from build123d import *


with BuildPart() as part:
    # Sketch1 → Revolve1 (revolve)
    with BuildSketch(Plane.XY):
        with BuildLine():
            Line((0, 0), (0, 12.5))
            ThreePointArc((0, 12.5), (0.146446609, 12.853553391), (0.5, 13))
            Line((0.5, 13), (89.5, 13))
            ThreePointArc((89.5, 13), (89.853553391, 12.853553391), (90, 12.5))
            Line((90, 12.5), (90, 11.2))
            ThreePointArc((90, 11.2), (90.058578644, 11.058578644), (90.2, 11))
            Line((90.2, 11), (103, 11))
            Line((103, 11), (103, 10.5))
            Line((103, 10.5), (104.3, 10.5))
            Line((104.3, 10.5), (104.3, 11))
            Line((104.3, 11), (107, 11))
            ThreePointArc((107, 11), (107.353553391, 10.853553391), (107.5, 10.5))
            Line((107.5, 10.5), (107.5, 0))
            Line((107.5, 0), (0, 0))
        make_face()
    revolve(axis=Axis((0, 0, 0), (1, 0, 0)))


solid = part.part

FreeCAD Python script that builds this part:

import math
import FreeCAD as App
import Part
import Sketcher

V = App.Vector
Q = App.Units.Quantity

doc = App.newDocument("Part")
body = doc.addObject("PartDesign::Body", "Body")

# Sketch on XY plane
sketch1 = body.newObject("Sketcher::SketchObject", "Sketch")
sketch1.AttachmentSupport = (doc.getObject("XY_Plane"), [""])
sketch1.MapMode = "FlatFace"
sketch1.addGeometry([
    Part.LineSegment(V(0, 12.5, 0), V(0, 0, 0)),  # 0
    Part.LineSegment(V(0, 0, 0), V(107.5, 0, 0)),  # 1
    Part.LineSegment(V(107.5, 0, 0), V(107.5, 10.5, 0)),  # 2
    Part.ArcOfCircle(Part.Circle(V(107, 10.5, 0), V(0, 0, 1), 0.5), math.radians(0), math.radians(90)),  # 3
    Part.LineSegment(V(107, 11, 0), V(104.3, 11, 0)),  # 4
    Part.LineSegment(V(104.3, 11, 0), V(104.3, 10.5, 0)),  # 5
    Part.LineSegment(V(104.3, 10.5, 0), V(103, 10.5, 0)),  # 6
    Part.LineSegment(V(103, 10.5, 0), V(103, 11, 0)),  # 7
    Part.LineSegment(V(103, 11, 0), V(90.2, 11, 0)),  # 8
    Part.ArcOfCircle(Part.Circle(V(90.2, 11.2, 0), V(0, 0, 1), 0.2), math.radians(-180), math.radians(-90)),  # 9
    Part.LineSegment(V(90, 11.2, 0), V(90, 12.5, 0)),  # 10
    Part.ArcOfCircle(Part.Circle(V(89.5, 12.5, 0), V(0, 0, 1), 0.5), math.radians(0), math.radians(90)),  # 11
    Part.LineSegment(V(89.5, 13, 0), V(0.5, 13, 0)),  # 12
    Part.ArcOfCircle(Part.Circle(V(0.5, 12.5, 0), V(0, 0, 1), 0.5), math.radians(90), math.radians(180)),  # 13
], False)
sketch1.addConstraint([
    Sketcher.Constraint("Coincident", 0, 2, 1, 1),
    Sketcher.Constraint("Coincident", 1, 2, 2, 1),
    Sketcher.Constraint("Tangent", 2, 2, 3, 1),
    Sketcher.Constraint("Tangent", 3, 2, 4, 1),
    Sketcher.Constraint("Coincident", 4, 2, 5, 1),
    Sketcher.Constraint("Coincident", 5, 2, 6, 1),
    Sketcher.Constraint("Coincident", 6, 2, 7, 1),
    Sketcher.Constraint("Coincident", 7, 2, 8, 1),
    Sketcher.Constraint("Tangent", 8, 2, 9, 2),
    Sketcher.Constraint("Tangent", 9, 1, 10, 1),
    Sketcher.Constraint("Tangent", 10, 2, 11, 1),
    Sketcher.Constraint("Tangent", 11, 2, 12, 1),
    Sketcher.Constraint("Tangent", 12, 2, 13, 1),
    Sketcher.Constraint("Tangent", 13, 2, 0, 1),
    Sketcher.Constraint("Vertical", 0),
    Sketcher.Constraint("Horizontal", 1),
    Sketcher.Constraint("Vertical", 2),
    Sketcher.Constraint("Horizontal", 4),
    Sketcher.Constraint("Vertical", 5),
    Sketcher.Constraint("Horizontal", 6),
    Sketcher.Constraint("Vertical", 7),
    Sketcher.Constraint("Horizontal", 8),
    Sketcher.Constraint("Vertical", 10),
    Sketcher.Constraint("Horizontal", 12),
    Sketcher.Constraint("Coincident", 0, 2, -1, 1),
    Sketcher.Constraint("Equal", 3, 11),
    Sketcher.Constraint("Equal", 11, 13),
    Sketcher.Constraint("Horizontal", 2, 2, 5, 2),
    Sketcher.Constraint("Horizontal", 4, 2, 7, 2),
    Sketcher.Constraint("Equal", 6, 10),
    Sketcher.Constraint("Radius", 3, Q("0.5 mm")),
    Sketcher.Constraint("Radius", 9, Q("0.2 mm")),
    Sketcher.Constraint("DistanceX", 12, 2, 12, 1, Q("89 mm")),
    Sketcher.Constraint("DistanceX", 1, 1, 1, 2, Q("107.5 mm")),
    Sketcher.Constraint("DistanceX", 4, 2, 4, 1, Q("2.7 mm")),
    Sketcher.Constraint("DistanceX", 6, 2, 6, 1, Q("1.3 mm")),
    Sketcher.Constraint("DistanceY", 0, 2, 0, 1, Q("12.5 mm")),
])
revolution = body.newObject("PartDesign::Revolution", "Revolution")
revolution.Profile = sketch1
revolution.ReferenceAxis = (sketch1, ["H_Axis"])
revolution.Angle = 360

doc.recompute()
